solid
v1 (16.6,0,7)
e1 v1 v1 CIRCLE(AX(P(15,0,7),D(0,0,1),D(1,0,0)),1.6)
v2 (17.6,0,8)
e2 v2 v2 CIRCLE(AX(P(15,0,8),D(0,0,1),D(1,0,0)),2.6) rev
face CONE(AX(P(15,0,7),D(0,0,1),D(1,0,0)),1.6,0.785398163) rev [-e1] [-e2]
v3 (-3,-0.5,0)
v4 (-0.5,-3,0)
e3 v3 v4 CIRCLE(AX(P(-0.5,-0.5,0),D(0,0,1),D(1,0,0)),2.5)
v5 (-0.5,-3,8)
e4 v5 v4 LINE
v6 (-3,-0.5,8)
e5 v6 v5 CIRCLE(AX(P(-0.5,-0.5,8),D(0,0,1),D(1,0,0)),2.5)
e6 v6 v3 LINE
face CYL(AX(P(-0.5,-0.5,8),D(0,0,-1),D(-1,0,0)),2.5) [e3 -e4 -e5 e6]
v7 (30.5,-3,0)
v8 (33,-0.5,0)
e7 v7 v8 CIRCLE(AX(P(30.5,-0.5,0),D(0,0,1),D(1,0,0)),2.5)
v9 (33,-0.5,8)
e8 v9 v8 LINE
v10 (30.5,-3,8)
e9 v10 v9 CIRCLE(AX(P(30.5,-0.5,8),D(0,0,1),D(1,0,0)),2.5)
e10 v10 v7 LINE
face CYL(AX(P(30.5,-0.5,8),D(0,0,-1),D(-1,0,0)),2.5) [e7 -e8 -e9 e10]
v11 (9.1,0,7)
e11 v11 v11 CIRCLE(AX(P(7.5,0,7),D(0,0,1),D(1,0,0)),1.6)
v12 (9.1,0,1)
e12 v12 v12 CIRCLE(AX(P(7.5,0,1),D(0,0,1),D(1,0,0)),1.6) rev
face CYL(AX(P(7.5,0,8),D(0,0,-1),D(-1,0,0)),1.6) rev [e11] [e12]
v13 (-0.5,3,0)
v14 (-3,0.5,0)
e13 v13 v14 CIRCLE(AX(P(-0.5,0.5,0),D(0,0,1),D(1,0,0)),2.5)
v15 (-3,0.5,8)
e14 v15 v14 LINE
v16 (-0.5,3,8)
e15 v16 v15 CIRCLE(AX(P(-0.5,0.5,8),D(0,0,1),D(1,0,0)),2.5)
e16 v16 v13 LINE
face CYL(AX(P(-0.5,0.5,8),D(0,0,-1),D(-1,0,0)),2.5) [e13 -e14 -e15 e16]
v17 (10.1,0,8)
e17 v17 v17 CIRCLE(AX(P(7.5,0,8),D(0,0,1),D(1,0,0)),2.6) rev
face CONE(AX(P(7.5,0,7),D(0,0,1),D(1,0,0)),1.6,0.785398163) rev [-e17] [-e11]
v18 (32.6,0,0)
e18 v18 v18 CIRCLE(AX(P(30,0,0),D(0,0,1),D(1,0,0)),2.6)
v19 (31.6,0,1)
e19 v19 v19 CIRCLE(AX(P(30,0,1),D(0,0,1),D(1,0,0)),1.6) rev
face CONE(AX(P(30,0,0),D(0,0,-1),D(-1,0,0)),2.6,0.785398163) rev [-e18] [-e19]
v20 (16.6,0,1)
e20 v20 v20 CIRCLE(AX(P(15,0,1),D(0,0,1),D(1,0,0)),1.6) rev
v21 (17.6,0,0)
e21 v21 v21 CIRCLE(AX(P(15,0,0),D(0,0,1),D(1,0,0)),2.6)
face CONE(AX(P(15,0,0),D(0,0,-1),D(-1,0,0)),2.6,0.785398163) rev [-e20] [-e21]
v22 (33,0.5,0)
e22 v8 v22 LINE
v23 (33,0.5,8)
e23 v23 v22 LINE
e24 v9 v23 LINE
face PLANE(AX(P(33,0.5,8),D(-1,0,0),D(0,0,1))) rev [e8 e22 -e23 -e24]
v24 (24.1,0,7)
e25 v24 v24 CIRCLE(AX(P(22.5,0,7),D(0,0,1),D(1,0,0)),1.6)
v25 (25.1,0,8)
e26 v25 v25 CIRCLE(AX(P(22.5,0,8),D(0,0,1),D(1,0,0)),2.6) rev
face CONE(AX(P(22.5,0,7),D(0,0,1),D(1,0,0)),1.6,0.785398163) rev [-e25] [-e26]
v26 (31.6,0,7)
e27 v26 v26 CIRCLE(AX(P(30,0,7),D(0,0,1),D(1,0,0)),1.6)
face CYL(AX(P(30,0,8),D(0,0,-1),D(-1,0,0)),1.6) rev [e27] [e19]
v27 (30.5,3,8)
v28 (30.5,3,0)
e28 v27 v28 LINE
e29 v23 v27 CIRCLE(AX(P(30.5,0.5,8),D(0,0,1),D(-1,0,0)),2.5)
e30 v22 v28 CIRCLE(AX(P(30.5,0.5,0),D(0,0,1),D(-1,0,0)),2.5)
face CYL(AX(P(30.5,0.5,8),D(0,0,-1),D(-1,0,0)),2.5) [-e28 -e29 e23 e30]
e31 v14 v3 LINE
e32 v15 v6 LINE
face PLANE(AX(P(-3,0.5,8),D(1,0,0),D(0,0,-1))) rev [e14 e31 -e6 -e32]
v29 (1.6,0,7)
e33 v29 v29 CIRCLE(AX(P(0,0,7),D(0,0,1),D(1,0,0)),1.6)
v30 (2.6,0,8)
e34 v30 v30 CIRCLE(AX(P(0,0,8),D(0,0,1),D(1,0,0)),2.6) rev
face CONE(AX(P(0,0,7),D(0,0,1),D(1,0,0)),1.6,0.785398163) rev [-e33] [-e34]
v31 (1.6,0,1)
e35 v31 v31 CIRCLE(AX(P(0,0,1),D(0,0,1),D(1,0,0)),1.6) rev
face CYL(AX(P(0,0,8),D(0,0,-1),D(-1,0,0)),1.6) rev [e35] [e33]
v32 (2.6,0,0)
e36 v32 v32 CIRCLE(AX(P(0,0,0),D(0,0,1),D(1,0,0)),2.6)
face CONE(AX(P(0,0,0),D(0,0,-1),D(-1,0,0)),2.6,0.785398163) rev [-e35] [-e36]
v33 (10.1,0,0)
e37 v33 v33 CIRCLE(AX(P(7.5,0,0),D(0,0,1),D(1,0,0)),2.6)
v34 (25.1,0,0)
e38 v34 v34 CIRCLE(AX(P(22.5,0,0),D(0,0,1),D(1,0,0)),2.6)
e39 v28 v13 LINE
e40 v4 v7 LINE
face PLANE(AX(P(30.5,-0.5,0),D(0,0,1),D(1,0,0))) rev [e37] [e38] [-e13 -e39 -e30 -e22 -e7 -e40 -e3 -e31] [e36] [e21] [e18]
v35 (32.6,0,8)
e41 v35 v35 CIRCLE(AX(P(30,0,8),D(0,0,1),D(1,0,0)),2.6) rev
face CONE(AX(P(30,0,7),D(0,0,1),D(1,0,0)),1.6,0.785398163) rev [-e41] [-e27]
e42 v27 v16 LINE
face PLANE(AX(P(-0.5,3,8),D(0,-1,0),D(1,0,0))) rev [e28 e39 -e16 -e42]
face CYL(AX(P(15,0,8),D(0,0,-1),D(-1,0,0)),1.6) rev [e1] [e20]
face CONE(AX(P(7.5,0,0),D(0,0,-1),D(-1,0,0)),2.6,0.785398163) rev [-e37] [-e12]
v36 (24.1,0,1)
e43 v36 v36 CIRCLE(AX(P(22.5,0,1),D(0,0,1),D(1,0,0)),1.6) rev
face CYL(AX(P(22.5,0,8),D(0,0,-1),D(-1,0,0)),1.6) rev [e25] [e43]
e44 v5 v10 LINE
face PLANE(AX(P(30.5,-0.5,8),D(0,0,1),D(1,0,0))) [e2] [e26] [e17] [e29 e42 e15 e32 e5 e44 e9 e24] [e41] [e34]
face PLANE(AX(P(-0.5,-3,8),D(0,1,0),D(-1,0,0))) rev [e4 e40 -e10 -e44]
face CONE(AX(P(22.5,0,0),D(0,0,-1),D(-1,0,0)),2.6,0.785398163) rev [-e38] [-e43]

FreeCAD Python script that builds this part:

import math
import FreeCAD as App
import Part
import Sketcher


def edges_at(feature, points):
    """Names of the edges that pass closest to the given points."""
    edges = feature.Shape.Edges
    near = lambda p: min(range(len(edges)), key=lambda i: edges[i].distToShape(Part.Vertex(*p))[0])
    return sorted({f"Edge{near(p) + 1}" for p in points})

doc = App.newDocument("Part")
params = doc.addObject("Spreadsheet::Sheet", "Params")
for row, (alias, value) in enumerate([
    ("sketch1_diameter", "3.2 mm"),
    ("sketch1_radius", "2.5 mm"),
    ("sketch1_width", "31 mm"),
    ("sketch1_height", "1 mm"),
    ("pad1_length", "8 mm"),
    ("chamfer_size", "1 mm"),
], start=1):
    params.set(f"A{row}", alias)
    params.set(f"B{row}", "=" + value)
    params.setAlias(f"B{row}", alias)

body = doc.addObject("PartDesign::Body", "Body")

# Sketch on XY plane
sketch1 = doc.addObject("Sketcher::SketchObject", "Sketch")
body.addObject(sketch1)
sketch1.AttachmentSupport = (doc.XY_Plane, [""])
sketch1.MapMode = "FlatFace"
sketch1.addGeometry([
    Part.LineSegment(App.Vector(30.5, 3, 0), App.Vector(-0.5, 3, 0)),  # 0
    Part.ArcOfCircle(Part.Circle(App.Vector(-0.5, 0.5, 0), App.Vector(0, 0, 1), 2.5), math.radians(90), math.radians(180)),  # 1
    Part.LineSegment(App.Vector(-3, 0.5, 0), App.Vector(-3, -0.5, 0)),  # 2
    Part.ArcOfCircle(Part.Circle(App.Vector(-0.5, -0.5, 0), App.Vector(0, 0, 1), 2.5), math.radians(180), math.radians(270)),  # 3
    Part.LineSegment(App.Vector(-0.5, -3, 0), App.Vector(30.5, -3, 0)),  # 4
    Part.ArcOfCircle(Part.Circle(App.Vector(30.5, -0.5, 0), App.Vector(0, 0, 1), 2.5), math.radians(-90), math.radians(0)),  # 5
    Part.LineSegment(App.Vector(33, -0.5, 0), App.Vector(33, 0.5, 0)),  # 6
    Part.ArcOfCircle(Part.Circle(App.Vector(30.5, 0.5, 0), App.Vector(0, 0, 1), 2.5), math.radians(0), math.radians(90)),  # 7
    Part.Circle(App.Vector(30, 0, 0), App.Vector(0, 0, 1), 1.6),  # 8
    Part.Circle(App.Vector(22.5, 0, 0), App.Vector(0, 0, 1), 1.6),  # 9
    Part.Circle(App.Vector(15, 0, 0), App.Vector(0, 0, 1), 1.6),  # 10
    Part.Circle(App.Vector(7.5, 0, 0), App.Vector(0, 0, 1), 1.6),  # 11
    Part.Circle(App.Vector(0, 0, 0), App.Vector(0, 0, 1), 1.6),  # 12
], False)
sketch1.addConstraint([
    Sketcher.Constraint("Tangent", 0, 2, 1, 1),
    Sketcher.Constraint("Tangent", 1, 2, 2, 1),
    Sketcher.Constraint("Tangent", 2, 2, 3, 1),
    Sketcher.Constraint("Tangent", 3, 2, 4, 1),
    Sketcher.Constraint("Tangent", 4, 2, 5, 1),
    Sketcher.Constraint("Tangent", 5, 2, 6, 1),
    Sketcher.Constraint("Tangent", 6, 2, 7, 1),
    Sketcher.Constraint("Tangent", 7, 2, 0, 1),
    Sketcher.Constraint("Horizontal", 0),
    Sketcher.Constraint("Vertical", 2),
    Sketcher.Constraint("Horizontal", 4),
    Sketcher.Constraint("Vertical", 6),
    Sketcher.Constraint("Coincident", 12, 3, -1, 1),
    Sketcher.Constraint("Equal", 1, 3),
    Sketcher.Constraint("Equal", 3, 5),
    Sketcher.Constraint("Equal", 5, 7),
    Sketcher.Constraint("Equal", 8, 9),
    Sketcher.Constraint("Equal", 9, 10),
    Sketcher.Constraint("Equal", 10, 11),
    Sketcher.Constraint("Equal", 11, 12),
    Sketcher.Constraint("PointOnObject", 8, 3, -1),
    Sketcher.Constraint("PointOnObject", 9, 3, -1),
    Sketcher.Constraint("PointOnObject", 10, 3, -1),
    Sketcher.Constraint("PointOnObject", 11, 3, -1),
    Sketcher.Constraint("Diameter", 8, 3.2),
    Sketcher.Constraint("Radius", 1, 2.5),
    Sketcher.Constraint("DistanceX", 0, 2, 0, 1, 31.0),
    Sketcher.Constraint("DistanceY", 2, 2, 2, 1, 1.0),
    Sketcher.Constraint("DistanceX", -1, 1, 8, 3, 30.0),
    Sketcher.Constraint("DistanceX", -1, 1, 10, 3, 15.0),
    Sketcher.Constraint("DistanceY", -1, 1, 0, 2, 3.0),
    Sketcher.Constraint("DistanceX", 1, 2, -1, 1, 3.0),
    Sketcher.Constraint("DistanceX", 9, 3, 5, 3, 8.0),
    Sketcher.Constraint("DistanceX", 1, 3, 11, 3, 8.0),
])
sketch1.setExpression("Constraints[24]", "Params.sketch1_diameter")
sketch1.setExpression("Constraints[25]", "Params.sketch1_radius")
sketch1.setExpression("Constraints[26]", "Params.sketch1_width")
sketch1.setExpression("Constraints[27]", "Params.sketch1_height")
pad1 = doc.addObject("PartDesign::Pad", "Pad")
body.addObject(pad1)
pad1.Profile = sketch1
pad1.setExpression("Length", "Params.pad1_length")
doc.recompute()

chamfer = doc.addObject("PartDesign::Chamfer", "Chamfer")
body.addObject(chamfer)
chamfer.Base = (pad1, edges_at(pad1, [
    (-1.6, 0, 0),
    (-1.6, 0, 8),
    (5.9, 0, 0),
    (5.9, 0, 8),
    (13.4, 0, 0),
    (13.4, 0, 8),
    (20.9, 0, 0),
    (20.9, 0, 8),
    (28.4, 0, 0),
    (28.4, 0, 8),
]))
chamfer.setExpression("Size", "Params.chamfer_size")

doc.recompute()
